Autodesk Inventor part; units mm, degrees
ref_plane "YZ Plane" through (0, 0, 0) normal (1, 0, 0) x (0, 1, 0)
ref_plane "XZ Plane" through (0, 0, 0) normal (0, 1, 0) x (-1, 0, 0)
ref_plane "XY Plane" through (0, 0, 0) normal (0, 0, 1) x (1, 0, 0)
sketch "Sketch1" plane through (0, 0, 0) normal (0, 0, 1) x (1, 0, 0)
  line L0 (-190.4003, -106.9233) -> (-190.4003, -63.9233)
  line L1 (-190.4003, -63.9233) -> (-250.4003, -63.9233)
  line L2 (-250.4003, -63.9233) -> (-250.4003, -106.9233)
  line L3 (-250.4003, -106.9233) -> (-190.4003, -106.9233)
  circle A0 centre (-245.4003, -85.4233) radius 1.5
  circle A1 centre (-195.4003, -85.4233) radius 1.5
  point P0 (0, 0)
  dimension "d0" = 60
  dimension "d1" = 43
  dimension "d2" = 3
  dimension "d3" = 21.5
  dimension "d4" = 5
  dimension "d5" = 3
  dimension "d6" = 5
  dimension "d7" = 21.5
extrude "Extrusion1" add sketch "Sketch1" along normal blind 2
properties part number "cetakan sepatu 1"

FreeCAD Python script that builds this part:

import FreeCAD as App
import Part
import Sketcher

V = App.Vector
Q = App.Units.Quantity


def add_polygon(sketch, points):
    """Adds a closed chain of lines whose ends are joined by coincident constraints."""
    first, n = sketch.GeometryCount, len(points)
    for a, b in zip(points, points[1:] + points[:1]):
        sketch.addGeometry(Part.LineSegment(App.Vector(*a, 0), App.Vector(*b, 0)), False)
    for i in range(n):
        sketch.addConstraint(Sketcher.Constraint("Coincident", first + i, 2, first + (i + 1) % n, 1))

doc = App.newDocument("Part")
body = doc.addObject("PartDesign::Body", "Body")

# Sketch on XY plane
sketch1 = body.newObject("Sketcher::SketchObject", "Sketch")
sketch1.AttachmentSupport = (doc.getObject("XY_Plane"), [""])
sketch1.MapMode = "FlatFace"
add_polygon(sketch1, [(-250.4, -106.9), (-190.4, -106.9), (-190.4, -63.9), (-250.4, -63.9)])  # lines 0-3
sketch1.addGeometry(Part.Circle(V(-245.4, -85.4, 0), V(0, 0, 1), 1.5), False)  # 4
sketch1.addGeometry(Part.Circle(V(-195.4, -85.4, 0), V(0, 0, 1), 1.5), False)  # 5
sketch1.addConstraint(Sketcher.Constraint("Horizontal", 0))
sketch1.addConstraint(Sketcher.Constraint("Vertical", 1))
sketch1.addConstraint(Sketcher.Constraint("Horizontal", 2))
sketch1.addConstraint(Sketcher.Constraint("Vertical", 3))
sketch1.addConstraint(Sketcher.Constraint("Equal", 4, 5))
sketch1.addConstraint(Sketcher.Constraint("Horizontal", 4, 3, 5, 3))
sketch1.addConstraint(Sketcher.Constraint("Diameter", 4, Q("3 mm")))
sketch1.addConstraint(Sketcher.Constraint("DistanceX", 0, 1, 0, 2, Q("60 mm")))
sketch1.addConstraint(Sketcher.Constraint("DistanceY", 1, 1, 1, 2, Q("43 mm")))
sketch1.addConstraint(Sketcher.Constraint("DistanceX", 5, 3, 0, 2, Q("5 mm")))
sketch1.addConstraint(Sketcher.Constraint("DistanceX", 2, 2, 4, 3, Q("5 mm")))
sketch1.addConstraint(Sketcher.Constraint("DistanceY", 0, 2, 5, 3, Q("21.5 mm")))
sketch1.addConstraint(Sketcher.Constraint("DistanceX", 4, 3, -1, 1, Q("245.4003 mm")))
sketch1.addConstraint(Sketcher.Constraint("DistanceY", 4, 3, -1, 1, Q("85.4233 mm")))
pad1 = body.newObject("PartDesign::Pad", "Pad")
pad1.Profile = sketch1
pad1.Length = 2

doc.recompute()
